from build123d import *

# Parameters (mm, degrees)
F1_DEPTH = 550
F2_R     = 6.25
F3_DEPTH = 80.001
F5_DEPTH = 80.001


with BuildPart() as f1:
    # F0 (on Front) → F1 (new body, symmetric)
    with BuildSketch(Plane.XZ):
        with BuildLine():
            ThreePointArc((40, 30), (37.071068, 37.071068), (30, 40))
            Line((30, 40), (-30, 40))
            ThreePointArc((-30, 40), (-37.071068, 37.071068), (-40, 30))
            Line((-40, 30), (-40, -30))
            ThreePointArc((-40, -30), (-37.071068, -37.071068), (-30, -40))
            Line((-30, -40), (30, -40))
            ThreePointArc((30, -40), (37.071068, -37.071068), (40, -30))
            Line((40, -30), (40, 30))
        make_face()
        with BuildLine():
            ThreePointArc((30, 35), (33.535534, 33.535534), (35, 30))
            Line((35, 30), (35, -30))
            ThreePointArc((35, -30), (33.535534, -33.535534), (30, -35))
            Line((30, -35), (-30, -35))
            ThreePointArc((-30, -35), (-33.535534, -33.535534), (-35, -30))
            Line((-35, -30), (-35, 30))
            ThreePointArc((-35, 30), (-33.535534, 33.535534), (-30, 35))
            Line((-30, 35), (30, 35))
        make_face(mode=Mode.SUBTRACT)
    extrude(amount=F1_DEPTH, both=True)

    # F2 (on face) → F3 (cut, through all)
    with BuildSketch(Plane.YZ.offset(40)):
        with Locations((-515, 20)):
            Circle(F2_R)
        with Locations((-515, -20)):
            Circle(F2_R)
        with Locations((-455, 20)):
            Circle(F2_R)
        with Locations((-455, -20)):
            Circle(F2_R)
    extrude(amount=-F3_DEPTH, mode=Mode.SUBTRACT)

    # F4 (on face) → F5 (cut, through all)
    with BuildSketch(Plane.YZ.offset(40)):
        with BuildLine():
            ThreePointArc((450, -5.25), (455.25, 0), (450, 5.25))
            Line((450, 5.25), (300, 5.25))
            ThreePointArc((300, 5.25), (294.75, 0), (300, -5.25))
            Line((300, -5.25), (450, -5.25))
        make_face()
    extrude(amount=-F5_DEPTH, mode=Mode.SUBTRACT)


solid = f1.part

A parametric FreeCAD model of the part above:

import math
import FreeCAD as App
import Part
import Sketcher
from FreeCAD import Vector

doc = App.newDocument("Part")
body = doc.addObject("PartDesign::Body", "Body")

# Sketch on XZ plane
sketch1 = body.newObject("Sketcher::SketchObject", "Sketch")
sketch1.AttachmentSupport = (doc.getObject("XZ_Plane"), [""])
sketch1.MapMode = "FlatFace"
sketch1.addGeometry(Part.ArcOfCircle(Part.Circle(Vector(30.000001, 30.000001, 0), Vector(0, 0, 1), 9.999999), math.radians(-0.000004), math.radians(90.000004)), False)
sketch1.addGeometry(Part.LineSegment(Vector(30, 40, 0), Vector(-30, 40, 0)), False)
sketch1.addGeometry(Part.ArcOfCircle(Part.Circle(Vector(-30.000001, 30.000001, 0), Vector(0, 0, 1), 9.999999), math.radians(89.999996), math.radians(180.000004)), False)
sketch1.addGeometry(Part.LineSegment(Vector(-40, 30, 0), Vector(-40, -30, 0)), False)
sketch1.addGeometry(Part.ArcOfCircle(Part.Circle(Vector(-30.000001, -30.000001, 0), Vector(0, 0, 1), 9.999999), math.radians(179.999996), math.radians(270.000004)), False)
sketch1.addGeometry(Part.LineSegment(Vector(-30, -40, 0), Vector(30, -40, 0)), False)
sketch1.addGeometry(Part.ArcOfCircle(Part.Circle(Vector(30.000001, -30.000001, 0), Vector(0, 0, 1), 9.999999), math.radians(-90.000004), math.radians(0.000004)), False)
sketch1.addGeometry(Part.LineSegment(Vector(40, -30, 0), Vector(40, 30, 0)), False)
sketch1.addGeometry(Part.LineSegment(Vector(-30, 35, 0), Vector(30, 35, 0)), False)
sketch1.addGeometry(Part.ArcOfCircle(Part.Circle(Vector(30, 30, 0), Vector(0, 0, 1), 5), math.radians(-0.000004), math.radians(90.000004)), False)
sketch1.addGeometry(Part.LineSegment(Vector(35, 30, 0), Vector(35, -30, 0)), False)
sketch1.addGeometry(Part.ArcOfCircle(Part.Circle(Vector(30, -30, 0), Vector(0, 0, 1), 5), math.radians(-90.000004), math.radians(0.000004)), False)
sketch1.addGeometry(Part.LineSegment(Vector(30, -35, 0), Vector(-30, -35, 0)), False)
sketch1.addGeometry(Part.ArcOfCircle(Part.Circle(Vector(-30, -30, 0), Vector(0, 0, 1), 5), math.radians(179.999996), math.radians(270.000004)), False)
sketch1.addGeometry(Part.LineSegment(Vector(-35, -30, 0), Vector(-35, 30, 0)), False)
sketch1.addGeometry(Part.ArcOfCircle(Part.Circle(Vector(-30, 30, 0), Vector(0, 0, 1), 5), math.radians(89.999996), math.radians(180.000004)), False)
sketch1.addConstraint(Sketcher.Constraint("Tangent", 0, 2, 1, 1))
sketch1.addConstraint(Sketcher.Constraint("Tangent", 1, 2, 2, 1))
sketch1.addConstraint(Sketcher.Constraint("Tangent", 2, 2, 3, 1))
sketch1.addConstraint(Sketcher.Constraint("Tangent", 3, 2, 4, 1))
sketch1.addConstraint(Sketcher.Constraint("Tangent", 4, 2, 5, 1))
sketch1.addConstraint(Sketcher.Constraint("Tangent", 5, 2, 6, 1))
sketch1.addConstraint(Sketcher.Constraint("Tangent", 6, 2, 7, 1))
sketch1.addConstraint(Sketcher.Constraint("Tangent", 7, 2, 0, 1))
sketch1.addConstraint(Sketcher.Constraint("Tangent", 8, 2, 9, 2))
sketch1.addConstraint(Sketcher.Constraint("Tangent", 9, 1, 10, 1))
sketch1.addConstraint(Sketcher.Constraint("Tangent", 10, 2, 11, 2))
sketch1.addConstraint(Sketcher.Constraint("Tangent", 11, 1, 12, 1))
sketch1.addConstraint(Sketcher.Constraint("Tangent", 12, 2, 13, 2))
sketch1.addConstraint(Sketcher.Constraint("Tangent", 13, 1, 14, 1))
sketch1.addConstraint(Sketcher.Constraint("Tangent", 14, 2, 15, 2))
sketch1.addConstraint(Sketcher.Constraint("Tangent", 15, 1, 8, 1))
sketch1.addConstraint(Sketcher.Constraint("Horizontal", 1))
sketch1.addConstraint(Sketcher.Constraint("Vertical", 3))
sketch1.addConstraint(Sketcher.Constraint("Horizontal", 5))
sketch1.addConstraint(Sketcher.Constraint("Vertical", 7))
sketch1.addConstraint(Sketcher.Constraint("Horizontal", 8))
sketch1.addConstraint(Sketcher.Constraint("Vertical", 10))
sketch1.addConstraint(Sketcher.Constraint("Horizontal", 12))
sketch1.addConstraint(Sketcher.Constraint("Vertical", 14))
sketch1.addConstraint(Sketcher.Constraint("Coincident", 9, 3, 0, 3))
sketch1.addConstraint(Sketcher.Constraint("Coincident", 11, 3, 6, 3))
sketch1.addConstraint(Sketcher.Constraint("Coincident", 13, 3, 4, 3))
sketch1.addConstraint(Sketcher.Constraint("Equal", 0, 2))
sketch1.addConstraint(Sketcher.Constraint("Equal", 2, 4))
sketch1.addConstraint(Sketcher.Constraint("Equal", 4, 6))
sketch1.addConstraint(Sketcher.Constraint("Equal", 13, 15))
sketch1.addConstraint(Sketcher.Constraint("Symmetric", 0, 3, 4, 3, -1, 1))
sketch1.addConstraint(Sketcher.Constraint("Equal", 12, 3))
sketch1.addConstraint(Sketcher.Constraint("Radius", 0, 9.999999))
sketch1.addConstraint(Sketcher.Constraint("Radius", 9, 5.0))
sketch1.addConstraint(Sketcher.Constraint("DistanceX", 1, 2, 1, 1, 60.0))
pad1 = body.newObject("PartDesign::Pad", "Pad")
pad1.Profile = sketch1
pad1.Length = 1100
pad1.Midplane = True

# Sketch on YZ plane
sketch2 = body.newObject("Sketcher::SketchObject", "Sketch001")
sketch2.AttachmentSupport = (doc.getObject("YZ_Plane"), [""])
sketch2.MapMode = "FlatFace"
sketch2.AttachmentOffset = App.Placement(Vector(0, 0, 40), App.Rotation())
sketch2.addGeometry(Part.Circle(Vector(-515, 20, 0), Vector(0, 0, 1), 6.25), False)
sketch2.addGeometry(Part.Circle(Vector(-515, -20, 0), Vector(0, 0, 1), 6.25), False)
sketch2.addGeometry(Part.Circle(Vector(-455, 20, 0), Vector(0, 0, 1), 6.25), False)
sketch2.addGeometry(Part.Circle(Vector(-455, -20, 0), Vector(0, 0, 1), 6.25), False)
sketch2.addConstraint(Sketcher.Constraint("Equal", 0, 1))
sketch2.addConstraint(Sketcher.Constraint("Equal", 1, 2))
sketch2.addConstraint(Sketcher.Constraint("Equal", 2, 3))
sketch2.addConstraint(Sketcher.Constraint("Symmetric", 0, 3, 1, 3, -1))
sketch2.addConstraint(Sketcher.Constraint("Symmetric", 2, 3, 3, 3, -1))
sketch2.addConstraint(Sketcher.Constraint("Horizontal", 0, 3, 2, 3))
sketch2.addConstraint(Sketcher.Constraint("Diameter", 0, 12.5))
sketch2.addConstraint(Sketcher.Constraint("DistanceX", 0, 3, -1, 1, 515.0))
sketch2.addConstraint(Sketcher.Constraint("DistanceY", -1, 1, 0, 3, 20.0))
sketch2.addConstraint(Sketcher.Constraint("DistanceX", 2, 3, -1, 1, 455.0))
pocket1 = body.newObject("PartDesign::Pocket", "Pocket")
pocket1.Profile = sketch2
pocket1.Type = "ThroughAll"

# Sketch on YZ plane
sketch3 = body.newObject("Sketcher::SketchObject", "Sketch002")
sketch3.AttachmentSupport = (doc.getObject("YZ_Plane"), [""])
sketch3.MapMode = "FlatFace"
sketch3.AttachmentOffset = App.Placement(Vector(0, 0, 40), App.Rotation())
sketch3.addGeometry(Part.ArcOfCircle(Part.Circle(Vector(450, 0, 0), Vector(0, 0, 1), 5.25), math.radians(-90), math.radians(90)), False)
sketch3.addGeometry(Part.LineSegment(Vector(450, 5.25, 0), Vector(300, 5.25, 0)), False)
sketch3.addGeometry(Part.ArcOfCircle(Part.Circle(Vector(300, 0, 0), Vector(0, 0, 1), 5.25), math.radians(90), math.radians(270)), False)
sketch3.addGeometry(Part.LineSegment(Vector(300, -5.25, 0), Vector(450, -5.25, 0)), False)
sketch3.addConstraint(Sketcher.Constraint("Tangent", 0, 2, 1, 1))
sketch3.addConstraint(Sketcher.Constraint("Tangent", 1, 2, 2, 1))
sketch3.addConstraint(Sketcher.Constraint("Tangent", 2, 2, 3, 1))
sketch3.addConstraint(Sketcher.Constraint("Tangent", 3, 2, 0, 1))
sketch3.addConstraint(Sketcher.Constraint("Horizontal", 1))
sketch3.addConstraint(Sketcher.Constraint("Horizontal", 3))
sketch3.addConstraint(Sketcher.Constraint("PointOnObject", 0, 3, -1))
sketch3.addConstraint(Sketcher.Constraint("DistanceX", 1, 2, 1, 1, 150.0))
sketch3.addConstraint(Sketcher.Constraint("Radius", 0, 5.25))
sketch3.addConstraint(Sketcher.Constraint("DistanceX", -1, 1, 0, 3, 450.0))
pocket2 = body.newObject("PartDesign::Pocket", "Pocket001")
pocket2.Profile = sketch3
pocket2.Type = "ThroughAll"

doc.recompute()
